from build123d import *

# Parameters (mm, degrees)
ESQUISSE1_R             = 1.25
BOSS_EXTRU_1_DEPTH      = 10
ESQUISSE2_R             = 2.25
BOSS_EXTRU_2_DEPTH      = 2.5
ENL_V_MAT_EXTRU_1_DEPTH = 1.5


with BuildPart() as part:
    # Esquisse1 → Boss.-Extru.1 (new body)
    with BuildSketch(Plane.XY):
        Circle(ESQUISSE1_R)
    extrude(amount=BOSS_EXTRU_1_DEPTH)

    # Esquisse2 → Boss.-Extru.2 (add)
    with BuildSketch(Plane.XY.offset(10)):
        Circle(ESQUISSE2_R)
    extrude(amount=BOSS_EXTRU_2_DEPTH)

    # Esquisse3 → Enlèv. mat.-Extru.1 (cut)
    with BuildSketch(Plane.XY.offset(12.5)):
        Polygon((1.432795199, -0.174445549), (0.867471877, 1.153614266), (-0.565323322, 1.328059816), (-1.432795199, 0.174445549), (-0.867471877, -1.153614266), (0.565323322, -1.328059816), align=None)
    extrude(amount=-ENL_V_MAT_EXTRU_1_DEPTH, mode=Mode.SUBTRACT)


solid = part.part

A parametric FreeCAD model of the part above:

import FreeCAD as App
import Part
import Sketcher
from FreeCAD import Vector
Q = App.Units.Quantity

doc = App.newDocument("Part")
body = doc.addObject("PartDesign::Body", "Body")

# Sketch on XY plane
sketch1 = body.newObject("Sketcher::SketchObject", "Sketch")
sketch1.AttachmentSupport = (doc.getObject("XY_Plane"), [""])
sketch1.MapMode = "FlatFace"
sketch1.addGeometry(Part.Circle(Vector(0, 0, 0), Vector(0, 0, 1), 1.2), False)
sketch1.addConstraint([
    Sketcher.Constraint("Coincident", 0, 3, -1, 1),
    Sketcher.Constraint("Diameter", 0, Q("2.5 mm")),
])
pad1 = body.newObject("PartDesign::Pad", "Pad")
pad1.Profile = sketch1
pad1.Length = 10

# Sketch on XY plane
sketch2 = body.newObject("Sketcher::SketchObject", "Sketch001")
sketch2.AttachmentSupport = (doc.getObject("XY_Plane"), [""])
sketch2.MapMode = "FlatFace"
sketch2.AttachmentOffset = App.Placement(Vector(0, 0, 10), App.Rotation())
sketch2.addGeometry(Part.Circle(Vector(0, 0, 0), Vector(0, 0, 1), 2.2), False)
sketch2.addConstraint([
    Sketcher.Constraint("Coincident", 0, 3, -1, 1),
    Sketcher.Constraint("Diameter", 0, Q("4.5 mm")),
])
pad2 = body.newObject("PartDesign::Pad", "Pad001")
pad2.Profile = sketch2
pad2.Length = 2.5

# Sketch on XY plane
sketch3 = body.newObject("Sketcher::SketchObject", "Sketch002")
sketch3.AttachmentSupport = (doc.getObject("XY_Plane"), [""])
sketch3.MapMode = "FlatFace"
sketch3.AttachmentOffset = App.Placement(Vector(0, 0, 12.5), App.Rotation())
sketch3.addGeometry([
    Part.LineSegment(Vector(1.4, -0.2, 0), Vector(0.9, 1.2, 0)),  # 0
    Part.LineSegment(Vector(0.9, 1.2, 0), Vector(-0.6, 1.3, 0)),  # 1
    Part.LineSegment(Vector(-0.6, 1.3, 0), Vector(-1.4, 0.2, 0)),  # 2
    Part.LineSegment(Vector(-1.4, 0.2, 0), Vector(-0.9, -1.2, 0)),  # 3
    Part.LineSegment(Vector(-0.9, -1.2, 0), Vector(0.6, -1.3, 0)),  # 4
    Part.LineSegment(Vector(0.6, -1.3, 0), Vector(1.4, -0.2, 0)),  # 5
], False)
sketch3.addConstraint([
    Sketcher.Constraint("Coincident", 0, 2, 1, 1),
    Sketcher.Constraint("Coincident", 1, 2, 2, 1),
    Sketcher.Constraint("Coincident", 2, 2, 3, 1),
    Sketcher.Constraint("Coincident", 3, 2, 4, 1),
    Sketcher.Constraint("Coincident", 4, 2, 5, 1),
    Sketcher.Constraint("Coincident", 5, 2, 0, 1),
    Sketcher.Constraint("Symmetric", 0, 2, 3, 2, -1, 1),
    Sketcher.Constraint("Symmetric", 1, 2, 4, 2, -1, 1),
    Sketcher.Constraint("Symmetric", 2, 2, 5, 2, -1, 1),
    Sketcher.Constraint("Equal", 0, 1),
    Sketcher.Constraint("Equal", 1, 2),
    Sketcher.Constraint("DistanceX", -1, 1, 0, 2, Q("0.867472 mm")),
    Sketcher.Constraint("DistanceY", -1, 1, 1, 2, Q("1.32806 mm")),
    Sketcher.Constraint("DistanceX", 2, 2, 1, 2, Q("0.867472 mm")),
    Sketcher.Constraint("DistanceY", 2, 2, 0, 2, Q("0.979169 mm")),
])
pocket1 = body.newObject("PartDesign::Pocket", "Pocket")
pocket1.Profile = sketch3
pocket1.Length = 1.5

doc.recompute()
